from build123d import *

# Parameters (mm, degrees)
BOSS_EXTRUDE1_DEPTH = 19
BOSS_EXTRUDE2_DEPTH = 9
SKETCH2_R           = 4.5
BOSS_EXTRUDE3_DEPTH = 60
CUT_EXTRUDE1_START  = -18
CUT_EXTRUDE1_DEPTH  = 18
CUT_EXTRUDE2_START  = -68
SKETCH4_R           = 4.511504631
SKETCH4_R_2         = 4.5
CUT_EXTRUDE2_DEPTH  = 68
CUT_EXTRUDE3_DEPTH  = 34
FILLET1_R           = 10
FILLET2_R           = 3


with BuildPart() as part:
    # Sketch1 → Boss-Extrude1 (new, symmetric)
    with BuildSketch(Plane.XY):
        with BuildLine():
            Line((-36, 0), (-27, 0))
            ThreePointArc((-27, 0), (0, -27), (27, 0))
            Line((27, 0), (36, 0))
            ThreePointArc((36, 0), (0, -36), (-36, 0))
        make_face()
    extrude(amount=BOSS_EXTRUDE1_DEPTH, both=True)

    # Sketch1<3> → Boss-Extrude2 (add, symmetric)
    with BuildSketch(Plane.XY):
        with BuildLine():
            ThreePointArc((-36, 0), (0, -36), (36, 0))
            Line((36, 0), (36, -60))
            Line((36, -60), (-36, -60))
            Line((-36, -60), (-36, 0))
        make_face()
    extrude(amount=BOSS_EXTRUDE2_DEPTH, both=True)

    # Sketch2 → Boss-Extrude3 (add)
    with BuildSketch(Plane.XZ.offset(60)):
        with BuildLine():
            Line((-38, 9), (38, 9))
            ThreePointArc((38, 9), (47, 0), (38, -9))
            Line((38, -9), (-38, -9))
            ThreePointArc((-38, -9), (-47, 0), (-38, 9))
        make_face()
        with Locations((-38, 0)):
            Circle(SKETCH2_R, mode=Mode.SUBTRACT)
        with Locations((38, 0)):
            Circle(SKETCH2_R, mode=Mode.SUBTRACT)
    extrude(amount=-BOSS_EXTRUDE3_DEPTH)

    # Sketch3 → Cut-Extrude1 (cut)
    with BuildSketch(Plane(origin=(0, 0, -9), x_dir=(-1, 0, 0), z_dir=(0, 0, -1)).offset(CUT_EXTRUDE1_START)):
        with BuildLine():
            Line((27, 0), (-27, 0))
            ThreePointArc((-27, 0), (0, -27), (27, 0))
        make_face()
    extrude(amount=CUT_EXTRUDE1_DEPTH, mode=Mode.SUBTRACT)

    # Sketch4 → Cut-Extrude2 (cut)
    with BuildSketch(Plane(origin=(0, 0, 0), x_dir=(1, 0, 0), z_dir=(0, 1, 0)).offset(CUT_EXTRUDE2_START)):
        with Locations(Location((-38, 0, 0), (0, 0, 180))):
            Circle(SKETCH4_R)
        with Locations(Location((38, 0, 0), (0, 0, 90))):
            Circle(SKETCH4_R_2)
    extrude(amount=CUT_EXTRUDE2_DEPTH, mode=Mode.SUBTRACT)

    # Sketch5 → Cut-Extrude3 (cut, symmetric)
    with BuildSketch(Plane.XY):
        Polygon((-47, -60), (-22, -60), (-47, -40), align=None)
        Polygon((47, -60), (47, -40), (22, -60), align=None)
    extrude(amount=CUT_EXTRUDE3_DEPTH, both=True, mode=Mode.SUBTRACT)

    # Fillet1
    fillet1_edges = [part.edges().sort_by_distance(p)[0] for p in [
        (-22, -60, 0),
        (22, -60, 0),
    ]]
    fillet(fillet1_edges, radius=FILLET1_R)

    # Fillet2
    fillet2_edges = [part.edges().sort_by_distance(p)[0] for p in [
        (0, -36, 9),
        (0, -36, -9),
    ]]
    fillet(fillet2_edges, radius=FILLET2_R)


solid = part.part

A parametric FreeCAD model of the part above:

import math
import FreeCAD as App
import Part
import Sketcher
Q = App.Units.Quantity


def edges_at(feature, points):
    """Names of the edges that pass closest to the given points."""
    edges = feature.Shape.Edges
    near = lambda p: min(range(len(edges)), key=lambda i: edges[i].distToShape(Part.Vertex(*p))[0])
    return sorted({f"Edge{near(p) + 1}" for p in points})

doc = App.newDocument("Part")
body = doc.addObject("PartDesign::Body", "Body")

# Sketch on XY plane
sketch1 = body.newObject("Sketcher::SketchObject", "Sketch")
sketch1.AttachmentSupport = (doc.getObject("XY_Plane"), [""])
sketch1.MapMode = "FlatFace"
sketch1.addGeometry([
    Part.LineSegment(App.Vector(-27, 0, 0), App.Vector(-36, 0, 0)),
    Part.ArcOfCircle(Part.Circle(App.Vector(0, 0, 0), App.Vector(0, 0, 1), 36), math.radians(180), math.radians(360)),
    Part.LineSegment(App.Vector(36, 0, 0), App.Vector(27, 0, 0)),
    Part.ArcOfCircle(Part.Circle(App.Vector(0, 0, 0), App.Vector(0, 0, 1), 27), math.radians(180), math.radians(360)),
], False)
sketch1.addConstraint([
    Sketcher.Constraint("Coincident", 0, 2, 1, 1),
    Sketcher.Constraint("Coincident", 1, 2, 2, 1),
    Sketcher.Constraint("Coincident", 2, 2, 3, 2),
    Sketcher.Constraint("Coincident", 3, 1, 0, 1),
    Sketcher.Constraint("Horizontal", 0),
    Sketcher.Constraint("Horizontal", 2),
    Sketcher.Constraint("Coincident", 1, 3, -1, 1),
    Sketcher.Constraint("Coincident", 3, 3, -1, 1),
    Sketcher.Constraint("PointOnObject", 0, 2, -1),
    Sketcher.Constraint("PointOnObject", 1, 2, -1),
    Sketcher.Constraint("Radius", 1, Q("36 mm")),
    Sketcher.Constraint("Radius", 3, Q("27 mm")),
])
pad1 = body.newObject("PartDesign::Pad", "Pad")
pad1.Profile = sketch1
pad1.Length = 38
pad1.Midplane = True

# Sketch on XY plane
sketch2 = body.newObject("Sketcher::SketchObject", "Sketch001")
sketch2.AttachmentSupport = (doc.getObject("XY_Plane"), [""])
sketch2.MapMode = "FlatFace"
sketch2.addGeometry([
    Part.ArcOfCircle(Part.Circle(App.Vector(0, 0, 0), App.Vector(0, 0, 1), 36), math.radians(180), math.radians(360)),
    Part.LineSegment(App.Vector(-36, 0, 0), App.Vector(-36, -60, 0)),
    Part.LineSegment(App.Vector(-36, -60, 0), App.Vector(36, -60, 0)),
    Part.LineSegment(App.Vector(36, -60, 0), App.Vector(36, 0, 0)),
], False)
sketch2.addConstraint([
    Sketcher.Constraint("Tangent", 0, 1, 1, 1),
    Sketcher.Constraint("Coincident", 1, 2, 2, 1),
    Sketcher.Constraint("Coincident", 2, 2, 3, 1),
    Sketcher.Constraint("Tangent", 3, 2, 0, 2),
    Sketcher.Constraint("Vertical", 1),
    Sketcher.Constraint("Horizontal", 2),
    Sketcher.Constraint("Vertical", 3),
    Sketcher.Constraint("Coincident", 0, 3, -1, 1),
    Sketcher.Constraint("Radius", 0, Q("36 mm")),
    Sketcher.Constraint("DistanceY", 1, 2, 1, 1, Q("60 mm")),
])
pad2 = body.newObject("PartDesign::Pad", "Pad001")
pad2.Profile = sketch2
pad2.Length = 18
pad2.Midplane = True

# Sketch on XZ plane
sketch3 = body.newObject("Sketcher::SketchObject", "Sketch002")
sketch3.AttachmentSupport = (doc.getObject("XZ_Plane"), [""])
sketch3.MapMode = "FlatFace"
sketch3.AttachmentOffset = App.Placement(App.Vector(0, 0, 60), App.Rotation())
sketch3.addGeometry([
    Part.LineSegment(App.Vector(38, 9, 0), App.Vector(-38, 9, 0)),  # 0
    Part.ArcOfCircle(Part.Circle(App.Vector(-38, 0, 0), App.Vector(0, 0, 1), 9), math.radians(90), math.radians(270)),  # 1
    Part.LineSegment(App.Vector(-38, -9, 0), App.Vector(38, -9, 0)),  # 2
    Part.ArcOfCircle(Part.Circle(App.Vector(38, 0, 0), App.Vector(0, 0, 1), 9), math.radians(-90), math.radians(90)),  # 3
    Part.Circle(App.Vector(38, 0, 0), App.Vector(0, 0, 1), 4.5),  # 4
    Part.Circle(App.Vector(-38, 0, 0), App.Vector(0, 0, 1), 4.5),  # 5
], False)
sketch3.addConstraint([
    Sketcher.Constraint("Tangent", 0, 2, 1, 1),
    Sketcher.Constraint("Tangent", 1, 2, 2, 1),
    Sketcher.Constraint("Tangent", 2, 2, 3, 1),
    Sketcher.Constraint("Tangent", 3, 2, 0, 1),
    Sketcher.Constraint("Horizontal", 0),
    Sketcher.Constraint("Horizontal", 2),
    Sketcher.Constraint("Coincident", 4, 3, 3, 3),
    Sketcher.Constraint("Coincident", 5, 3, 1, 3),
    Sketcher.Constraint("Equal", 4, 5),
    Sketcher.Constraint("Symmetric", 1, 3, 3, 3, -1, 1),
    Sketcher.Constraint("Diameter", 4, Q("9 mm")),
    Sketcher.Constraint("Radius", 1, Q("9 mm")),
    Sketcher.Constraint("DistanceX", 0, 2, 0, 1, Q("76 mm")),
])
pad3 = body.newObject("PartDesign::Pad", "Pad002")
pad3.Profile = sketch3
pad3.Length = 60
pad3.Reversed = True

# Sketch on XY plane
sketch4 = body.newObject("Sketcher::SketchObject", "Sketch003")
sketch4.AttachmentSupport = (doc.getObject("XY_Plane"), [""])
sketch4.MapMode = "FlatFace"
sketch4.AttachmentOffset = App.Placement(App.Vector(0, 0, 9), App.Rotation())
sketch4.addGeometry([
    Part.LineSegment(App.Vector(-27, 0, 0), App.Vector(27, 0, 0)),
    Part.ArcOfCircle(Part.Circle(App.Vector(0, 0, 0), App.Vector(0, 0, 1), 27), math.radians(180), math.radians(360)),
], False)
sketch4.addConstraint([
    Sketcher.Constraint("Coincident", 0, 1, 1, 1),
    Sketcher.Constraint("Coincident", 1, 2, 0, 2),
    Sketcher.Constraint("Horizontal", 0),
    Sketcher.Constraint("Coincident", 1, 3, -1, 1),
    Sketcher.Constraint("PointOnObject", 0, 1, -1),
    Sketcher.Constraint("Radius", 1, Q("27 mm")),
])
pocket1 = body.newObject("PartDesign::Pocket", "Pocket")
pocket1.Profile = sketch4
pocket1.Length = 18

# Sketch on XZ plane
sketch5 = body.newObject("Sketcher::SketchObject", "Sketch004")
sketch5.AttachmentSupport = (doc.getObject("XZ_Plane"), [""])
sketch5.MapMode = "FlatFace"
sketch5.AttachmentOffset = App.Placement(App.Vector(0, 0, 68), App.Rotation())
sketch5.addGeometry([
    Part.Circle(App.Vector(-38, 0, 0), App.Vector(0, 0, 1), 4.511505),
    Part.Circle(App.Vector(38, 0, 0), App.Vector(0, 0, 1), 4.5),
], False)
sketch5.addConstraint([
    Sketcher.Constraint("Symmetric", 0, 3, 1, 3, -1, 1),
    Sketcher.Constraint("PointOnObject", 0, 3, -1),
    Sketcher.Constraint("Diameter", 1, Q("9 mm")),
    Sketcher.Constraint("DistanceX", 0, 3, -1, 1, Q("38 mm")),
    Sketcher.Constraint("Diameter", 0, Q("9.023009 mm")),
])
pocket2 = body.newObject("PartDesign::Pocket", "Pocket001")
pocket2.Profile = sketch5
pocket2.Length = 68

# Sketch on XY plane
sketch6 = body.newObject("Sketcher::SketchObject", "Sketch005")
sketch6.AttachmentSupport = (doc.getObject("XY_Plane"), [""])
sketch6.MapMode = "FlatFace"
sketch6.addGeometry([
    Part.LineSegment(App.Vector(-47, -60, 0), App.Vector(-22, -60, 0)),  # 0
    Part.LineSegment(App.Vector(-22, -60, 0), App.Vector(-47, -40, 0)),  # 1
    Part.LineSegment(App.Vector(-47, -40, 0), App.Vector(-47, -60, 0)),  # 2
    Part.LineSegment(App.Vector(47, -60, 0), App.Vector(47, -40, 0)),  # 3
    Part.LineSegment(App.Vector(47, -40, 0), App.Vector(22, -60, 0)),  # 4
    Part.LineSegment(App.Vector(22, -60, 0), App.Vector(47, -60, 0)),  # 5
], False)
sketch6.addConstraint([
    Sketcher.Constraint("Coincident", 0, 2, 1, 1),
    Sketcher.Constraint("Coincident", 1, 2, 2, 1),
    Sketcher.Constraint("Coincident", 2, 2, 0, 1),
    Sketcher.Constraint("Coincident", 3, 2, 4, 1),
    Sketcher.Constraint("Coincident", 4, 2, 5, 1),
    Sketcher.Constraint("Coincident", 5, 2, 3, 1),
    Sketcher.Constraint("Horizontal", 0),
    Sketcher.Constraint("Vertical", 2),
    Sketcher.Constraint("Vertical", 3),
    Sketcher.Constraint("Horizontal", 5),
    Sketcher.Constraint("Symmetric", 1, 2, 3, 2, -2),
    Sketcher.Constraint("Symmetric", 0, 2, 4, 2, -2),
    Sketcher.Constraint("DistanceX", 0, 1, 0, 2, Q("25 mm")),
    Sketcher.Constraint("DistanceY", 2, 2, 2, 1, Q("20 mm")),
    Sketcher.Constraint("DistanceX", 0, 2, -1, 1, Q("22 mm")),
    Sketcher.Constraint("DistanceY", 0, 2, -1, 1, Q("60 mm")),
])
pocket3 = body.newObject("PartDesign::Pocket", "Pocket002")
pocket3.Profile = sketch6
pocket3.Length = 68
pocket3.Midplane = True
doc.recompute()

fillet = body.newObject("PartDesign::Fillet", "Fillet")
fillet.Base = (pocket3, edges_at(pocket3, [(-22, -60, 0), (22, -60, 0)]))
fillet.Radius = 10
doc.recompute()

fillet2 = body.newObject("PartDesign::Fillet", "Fillet001")
fillet2.Base = (fillet, edges_at(fillet, [(0, -36, 9), (0, -36, -9)]))
fillet2.Radius = 3

doc.recompute()
